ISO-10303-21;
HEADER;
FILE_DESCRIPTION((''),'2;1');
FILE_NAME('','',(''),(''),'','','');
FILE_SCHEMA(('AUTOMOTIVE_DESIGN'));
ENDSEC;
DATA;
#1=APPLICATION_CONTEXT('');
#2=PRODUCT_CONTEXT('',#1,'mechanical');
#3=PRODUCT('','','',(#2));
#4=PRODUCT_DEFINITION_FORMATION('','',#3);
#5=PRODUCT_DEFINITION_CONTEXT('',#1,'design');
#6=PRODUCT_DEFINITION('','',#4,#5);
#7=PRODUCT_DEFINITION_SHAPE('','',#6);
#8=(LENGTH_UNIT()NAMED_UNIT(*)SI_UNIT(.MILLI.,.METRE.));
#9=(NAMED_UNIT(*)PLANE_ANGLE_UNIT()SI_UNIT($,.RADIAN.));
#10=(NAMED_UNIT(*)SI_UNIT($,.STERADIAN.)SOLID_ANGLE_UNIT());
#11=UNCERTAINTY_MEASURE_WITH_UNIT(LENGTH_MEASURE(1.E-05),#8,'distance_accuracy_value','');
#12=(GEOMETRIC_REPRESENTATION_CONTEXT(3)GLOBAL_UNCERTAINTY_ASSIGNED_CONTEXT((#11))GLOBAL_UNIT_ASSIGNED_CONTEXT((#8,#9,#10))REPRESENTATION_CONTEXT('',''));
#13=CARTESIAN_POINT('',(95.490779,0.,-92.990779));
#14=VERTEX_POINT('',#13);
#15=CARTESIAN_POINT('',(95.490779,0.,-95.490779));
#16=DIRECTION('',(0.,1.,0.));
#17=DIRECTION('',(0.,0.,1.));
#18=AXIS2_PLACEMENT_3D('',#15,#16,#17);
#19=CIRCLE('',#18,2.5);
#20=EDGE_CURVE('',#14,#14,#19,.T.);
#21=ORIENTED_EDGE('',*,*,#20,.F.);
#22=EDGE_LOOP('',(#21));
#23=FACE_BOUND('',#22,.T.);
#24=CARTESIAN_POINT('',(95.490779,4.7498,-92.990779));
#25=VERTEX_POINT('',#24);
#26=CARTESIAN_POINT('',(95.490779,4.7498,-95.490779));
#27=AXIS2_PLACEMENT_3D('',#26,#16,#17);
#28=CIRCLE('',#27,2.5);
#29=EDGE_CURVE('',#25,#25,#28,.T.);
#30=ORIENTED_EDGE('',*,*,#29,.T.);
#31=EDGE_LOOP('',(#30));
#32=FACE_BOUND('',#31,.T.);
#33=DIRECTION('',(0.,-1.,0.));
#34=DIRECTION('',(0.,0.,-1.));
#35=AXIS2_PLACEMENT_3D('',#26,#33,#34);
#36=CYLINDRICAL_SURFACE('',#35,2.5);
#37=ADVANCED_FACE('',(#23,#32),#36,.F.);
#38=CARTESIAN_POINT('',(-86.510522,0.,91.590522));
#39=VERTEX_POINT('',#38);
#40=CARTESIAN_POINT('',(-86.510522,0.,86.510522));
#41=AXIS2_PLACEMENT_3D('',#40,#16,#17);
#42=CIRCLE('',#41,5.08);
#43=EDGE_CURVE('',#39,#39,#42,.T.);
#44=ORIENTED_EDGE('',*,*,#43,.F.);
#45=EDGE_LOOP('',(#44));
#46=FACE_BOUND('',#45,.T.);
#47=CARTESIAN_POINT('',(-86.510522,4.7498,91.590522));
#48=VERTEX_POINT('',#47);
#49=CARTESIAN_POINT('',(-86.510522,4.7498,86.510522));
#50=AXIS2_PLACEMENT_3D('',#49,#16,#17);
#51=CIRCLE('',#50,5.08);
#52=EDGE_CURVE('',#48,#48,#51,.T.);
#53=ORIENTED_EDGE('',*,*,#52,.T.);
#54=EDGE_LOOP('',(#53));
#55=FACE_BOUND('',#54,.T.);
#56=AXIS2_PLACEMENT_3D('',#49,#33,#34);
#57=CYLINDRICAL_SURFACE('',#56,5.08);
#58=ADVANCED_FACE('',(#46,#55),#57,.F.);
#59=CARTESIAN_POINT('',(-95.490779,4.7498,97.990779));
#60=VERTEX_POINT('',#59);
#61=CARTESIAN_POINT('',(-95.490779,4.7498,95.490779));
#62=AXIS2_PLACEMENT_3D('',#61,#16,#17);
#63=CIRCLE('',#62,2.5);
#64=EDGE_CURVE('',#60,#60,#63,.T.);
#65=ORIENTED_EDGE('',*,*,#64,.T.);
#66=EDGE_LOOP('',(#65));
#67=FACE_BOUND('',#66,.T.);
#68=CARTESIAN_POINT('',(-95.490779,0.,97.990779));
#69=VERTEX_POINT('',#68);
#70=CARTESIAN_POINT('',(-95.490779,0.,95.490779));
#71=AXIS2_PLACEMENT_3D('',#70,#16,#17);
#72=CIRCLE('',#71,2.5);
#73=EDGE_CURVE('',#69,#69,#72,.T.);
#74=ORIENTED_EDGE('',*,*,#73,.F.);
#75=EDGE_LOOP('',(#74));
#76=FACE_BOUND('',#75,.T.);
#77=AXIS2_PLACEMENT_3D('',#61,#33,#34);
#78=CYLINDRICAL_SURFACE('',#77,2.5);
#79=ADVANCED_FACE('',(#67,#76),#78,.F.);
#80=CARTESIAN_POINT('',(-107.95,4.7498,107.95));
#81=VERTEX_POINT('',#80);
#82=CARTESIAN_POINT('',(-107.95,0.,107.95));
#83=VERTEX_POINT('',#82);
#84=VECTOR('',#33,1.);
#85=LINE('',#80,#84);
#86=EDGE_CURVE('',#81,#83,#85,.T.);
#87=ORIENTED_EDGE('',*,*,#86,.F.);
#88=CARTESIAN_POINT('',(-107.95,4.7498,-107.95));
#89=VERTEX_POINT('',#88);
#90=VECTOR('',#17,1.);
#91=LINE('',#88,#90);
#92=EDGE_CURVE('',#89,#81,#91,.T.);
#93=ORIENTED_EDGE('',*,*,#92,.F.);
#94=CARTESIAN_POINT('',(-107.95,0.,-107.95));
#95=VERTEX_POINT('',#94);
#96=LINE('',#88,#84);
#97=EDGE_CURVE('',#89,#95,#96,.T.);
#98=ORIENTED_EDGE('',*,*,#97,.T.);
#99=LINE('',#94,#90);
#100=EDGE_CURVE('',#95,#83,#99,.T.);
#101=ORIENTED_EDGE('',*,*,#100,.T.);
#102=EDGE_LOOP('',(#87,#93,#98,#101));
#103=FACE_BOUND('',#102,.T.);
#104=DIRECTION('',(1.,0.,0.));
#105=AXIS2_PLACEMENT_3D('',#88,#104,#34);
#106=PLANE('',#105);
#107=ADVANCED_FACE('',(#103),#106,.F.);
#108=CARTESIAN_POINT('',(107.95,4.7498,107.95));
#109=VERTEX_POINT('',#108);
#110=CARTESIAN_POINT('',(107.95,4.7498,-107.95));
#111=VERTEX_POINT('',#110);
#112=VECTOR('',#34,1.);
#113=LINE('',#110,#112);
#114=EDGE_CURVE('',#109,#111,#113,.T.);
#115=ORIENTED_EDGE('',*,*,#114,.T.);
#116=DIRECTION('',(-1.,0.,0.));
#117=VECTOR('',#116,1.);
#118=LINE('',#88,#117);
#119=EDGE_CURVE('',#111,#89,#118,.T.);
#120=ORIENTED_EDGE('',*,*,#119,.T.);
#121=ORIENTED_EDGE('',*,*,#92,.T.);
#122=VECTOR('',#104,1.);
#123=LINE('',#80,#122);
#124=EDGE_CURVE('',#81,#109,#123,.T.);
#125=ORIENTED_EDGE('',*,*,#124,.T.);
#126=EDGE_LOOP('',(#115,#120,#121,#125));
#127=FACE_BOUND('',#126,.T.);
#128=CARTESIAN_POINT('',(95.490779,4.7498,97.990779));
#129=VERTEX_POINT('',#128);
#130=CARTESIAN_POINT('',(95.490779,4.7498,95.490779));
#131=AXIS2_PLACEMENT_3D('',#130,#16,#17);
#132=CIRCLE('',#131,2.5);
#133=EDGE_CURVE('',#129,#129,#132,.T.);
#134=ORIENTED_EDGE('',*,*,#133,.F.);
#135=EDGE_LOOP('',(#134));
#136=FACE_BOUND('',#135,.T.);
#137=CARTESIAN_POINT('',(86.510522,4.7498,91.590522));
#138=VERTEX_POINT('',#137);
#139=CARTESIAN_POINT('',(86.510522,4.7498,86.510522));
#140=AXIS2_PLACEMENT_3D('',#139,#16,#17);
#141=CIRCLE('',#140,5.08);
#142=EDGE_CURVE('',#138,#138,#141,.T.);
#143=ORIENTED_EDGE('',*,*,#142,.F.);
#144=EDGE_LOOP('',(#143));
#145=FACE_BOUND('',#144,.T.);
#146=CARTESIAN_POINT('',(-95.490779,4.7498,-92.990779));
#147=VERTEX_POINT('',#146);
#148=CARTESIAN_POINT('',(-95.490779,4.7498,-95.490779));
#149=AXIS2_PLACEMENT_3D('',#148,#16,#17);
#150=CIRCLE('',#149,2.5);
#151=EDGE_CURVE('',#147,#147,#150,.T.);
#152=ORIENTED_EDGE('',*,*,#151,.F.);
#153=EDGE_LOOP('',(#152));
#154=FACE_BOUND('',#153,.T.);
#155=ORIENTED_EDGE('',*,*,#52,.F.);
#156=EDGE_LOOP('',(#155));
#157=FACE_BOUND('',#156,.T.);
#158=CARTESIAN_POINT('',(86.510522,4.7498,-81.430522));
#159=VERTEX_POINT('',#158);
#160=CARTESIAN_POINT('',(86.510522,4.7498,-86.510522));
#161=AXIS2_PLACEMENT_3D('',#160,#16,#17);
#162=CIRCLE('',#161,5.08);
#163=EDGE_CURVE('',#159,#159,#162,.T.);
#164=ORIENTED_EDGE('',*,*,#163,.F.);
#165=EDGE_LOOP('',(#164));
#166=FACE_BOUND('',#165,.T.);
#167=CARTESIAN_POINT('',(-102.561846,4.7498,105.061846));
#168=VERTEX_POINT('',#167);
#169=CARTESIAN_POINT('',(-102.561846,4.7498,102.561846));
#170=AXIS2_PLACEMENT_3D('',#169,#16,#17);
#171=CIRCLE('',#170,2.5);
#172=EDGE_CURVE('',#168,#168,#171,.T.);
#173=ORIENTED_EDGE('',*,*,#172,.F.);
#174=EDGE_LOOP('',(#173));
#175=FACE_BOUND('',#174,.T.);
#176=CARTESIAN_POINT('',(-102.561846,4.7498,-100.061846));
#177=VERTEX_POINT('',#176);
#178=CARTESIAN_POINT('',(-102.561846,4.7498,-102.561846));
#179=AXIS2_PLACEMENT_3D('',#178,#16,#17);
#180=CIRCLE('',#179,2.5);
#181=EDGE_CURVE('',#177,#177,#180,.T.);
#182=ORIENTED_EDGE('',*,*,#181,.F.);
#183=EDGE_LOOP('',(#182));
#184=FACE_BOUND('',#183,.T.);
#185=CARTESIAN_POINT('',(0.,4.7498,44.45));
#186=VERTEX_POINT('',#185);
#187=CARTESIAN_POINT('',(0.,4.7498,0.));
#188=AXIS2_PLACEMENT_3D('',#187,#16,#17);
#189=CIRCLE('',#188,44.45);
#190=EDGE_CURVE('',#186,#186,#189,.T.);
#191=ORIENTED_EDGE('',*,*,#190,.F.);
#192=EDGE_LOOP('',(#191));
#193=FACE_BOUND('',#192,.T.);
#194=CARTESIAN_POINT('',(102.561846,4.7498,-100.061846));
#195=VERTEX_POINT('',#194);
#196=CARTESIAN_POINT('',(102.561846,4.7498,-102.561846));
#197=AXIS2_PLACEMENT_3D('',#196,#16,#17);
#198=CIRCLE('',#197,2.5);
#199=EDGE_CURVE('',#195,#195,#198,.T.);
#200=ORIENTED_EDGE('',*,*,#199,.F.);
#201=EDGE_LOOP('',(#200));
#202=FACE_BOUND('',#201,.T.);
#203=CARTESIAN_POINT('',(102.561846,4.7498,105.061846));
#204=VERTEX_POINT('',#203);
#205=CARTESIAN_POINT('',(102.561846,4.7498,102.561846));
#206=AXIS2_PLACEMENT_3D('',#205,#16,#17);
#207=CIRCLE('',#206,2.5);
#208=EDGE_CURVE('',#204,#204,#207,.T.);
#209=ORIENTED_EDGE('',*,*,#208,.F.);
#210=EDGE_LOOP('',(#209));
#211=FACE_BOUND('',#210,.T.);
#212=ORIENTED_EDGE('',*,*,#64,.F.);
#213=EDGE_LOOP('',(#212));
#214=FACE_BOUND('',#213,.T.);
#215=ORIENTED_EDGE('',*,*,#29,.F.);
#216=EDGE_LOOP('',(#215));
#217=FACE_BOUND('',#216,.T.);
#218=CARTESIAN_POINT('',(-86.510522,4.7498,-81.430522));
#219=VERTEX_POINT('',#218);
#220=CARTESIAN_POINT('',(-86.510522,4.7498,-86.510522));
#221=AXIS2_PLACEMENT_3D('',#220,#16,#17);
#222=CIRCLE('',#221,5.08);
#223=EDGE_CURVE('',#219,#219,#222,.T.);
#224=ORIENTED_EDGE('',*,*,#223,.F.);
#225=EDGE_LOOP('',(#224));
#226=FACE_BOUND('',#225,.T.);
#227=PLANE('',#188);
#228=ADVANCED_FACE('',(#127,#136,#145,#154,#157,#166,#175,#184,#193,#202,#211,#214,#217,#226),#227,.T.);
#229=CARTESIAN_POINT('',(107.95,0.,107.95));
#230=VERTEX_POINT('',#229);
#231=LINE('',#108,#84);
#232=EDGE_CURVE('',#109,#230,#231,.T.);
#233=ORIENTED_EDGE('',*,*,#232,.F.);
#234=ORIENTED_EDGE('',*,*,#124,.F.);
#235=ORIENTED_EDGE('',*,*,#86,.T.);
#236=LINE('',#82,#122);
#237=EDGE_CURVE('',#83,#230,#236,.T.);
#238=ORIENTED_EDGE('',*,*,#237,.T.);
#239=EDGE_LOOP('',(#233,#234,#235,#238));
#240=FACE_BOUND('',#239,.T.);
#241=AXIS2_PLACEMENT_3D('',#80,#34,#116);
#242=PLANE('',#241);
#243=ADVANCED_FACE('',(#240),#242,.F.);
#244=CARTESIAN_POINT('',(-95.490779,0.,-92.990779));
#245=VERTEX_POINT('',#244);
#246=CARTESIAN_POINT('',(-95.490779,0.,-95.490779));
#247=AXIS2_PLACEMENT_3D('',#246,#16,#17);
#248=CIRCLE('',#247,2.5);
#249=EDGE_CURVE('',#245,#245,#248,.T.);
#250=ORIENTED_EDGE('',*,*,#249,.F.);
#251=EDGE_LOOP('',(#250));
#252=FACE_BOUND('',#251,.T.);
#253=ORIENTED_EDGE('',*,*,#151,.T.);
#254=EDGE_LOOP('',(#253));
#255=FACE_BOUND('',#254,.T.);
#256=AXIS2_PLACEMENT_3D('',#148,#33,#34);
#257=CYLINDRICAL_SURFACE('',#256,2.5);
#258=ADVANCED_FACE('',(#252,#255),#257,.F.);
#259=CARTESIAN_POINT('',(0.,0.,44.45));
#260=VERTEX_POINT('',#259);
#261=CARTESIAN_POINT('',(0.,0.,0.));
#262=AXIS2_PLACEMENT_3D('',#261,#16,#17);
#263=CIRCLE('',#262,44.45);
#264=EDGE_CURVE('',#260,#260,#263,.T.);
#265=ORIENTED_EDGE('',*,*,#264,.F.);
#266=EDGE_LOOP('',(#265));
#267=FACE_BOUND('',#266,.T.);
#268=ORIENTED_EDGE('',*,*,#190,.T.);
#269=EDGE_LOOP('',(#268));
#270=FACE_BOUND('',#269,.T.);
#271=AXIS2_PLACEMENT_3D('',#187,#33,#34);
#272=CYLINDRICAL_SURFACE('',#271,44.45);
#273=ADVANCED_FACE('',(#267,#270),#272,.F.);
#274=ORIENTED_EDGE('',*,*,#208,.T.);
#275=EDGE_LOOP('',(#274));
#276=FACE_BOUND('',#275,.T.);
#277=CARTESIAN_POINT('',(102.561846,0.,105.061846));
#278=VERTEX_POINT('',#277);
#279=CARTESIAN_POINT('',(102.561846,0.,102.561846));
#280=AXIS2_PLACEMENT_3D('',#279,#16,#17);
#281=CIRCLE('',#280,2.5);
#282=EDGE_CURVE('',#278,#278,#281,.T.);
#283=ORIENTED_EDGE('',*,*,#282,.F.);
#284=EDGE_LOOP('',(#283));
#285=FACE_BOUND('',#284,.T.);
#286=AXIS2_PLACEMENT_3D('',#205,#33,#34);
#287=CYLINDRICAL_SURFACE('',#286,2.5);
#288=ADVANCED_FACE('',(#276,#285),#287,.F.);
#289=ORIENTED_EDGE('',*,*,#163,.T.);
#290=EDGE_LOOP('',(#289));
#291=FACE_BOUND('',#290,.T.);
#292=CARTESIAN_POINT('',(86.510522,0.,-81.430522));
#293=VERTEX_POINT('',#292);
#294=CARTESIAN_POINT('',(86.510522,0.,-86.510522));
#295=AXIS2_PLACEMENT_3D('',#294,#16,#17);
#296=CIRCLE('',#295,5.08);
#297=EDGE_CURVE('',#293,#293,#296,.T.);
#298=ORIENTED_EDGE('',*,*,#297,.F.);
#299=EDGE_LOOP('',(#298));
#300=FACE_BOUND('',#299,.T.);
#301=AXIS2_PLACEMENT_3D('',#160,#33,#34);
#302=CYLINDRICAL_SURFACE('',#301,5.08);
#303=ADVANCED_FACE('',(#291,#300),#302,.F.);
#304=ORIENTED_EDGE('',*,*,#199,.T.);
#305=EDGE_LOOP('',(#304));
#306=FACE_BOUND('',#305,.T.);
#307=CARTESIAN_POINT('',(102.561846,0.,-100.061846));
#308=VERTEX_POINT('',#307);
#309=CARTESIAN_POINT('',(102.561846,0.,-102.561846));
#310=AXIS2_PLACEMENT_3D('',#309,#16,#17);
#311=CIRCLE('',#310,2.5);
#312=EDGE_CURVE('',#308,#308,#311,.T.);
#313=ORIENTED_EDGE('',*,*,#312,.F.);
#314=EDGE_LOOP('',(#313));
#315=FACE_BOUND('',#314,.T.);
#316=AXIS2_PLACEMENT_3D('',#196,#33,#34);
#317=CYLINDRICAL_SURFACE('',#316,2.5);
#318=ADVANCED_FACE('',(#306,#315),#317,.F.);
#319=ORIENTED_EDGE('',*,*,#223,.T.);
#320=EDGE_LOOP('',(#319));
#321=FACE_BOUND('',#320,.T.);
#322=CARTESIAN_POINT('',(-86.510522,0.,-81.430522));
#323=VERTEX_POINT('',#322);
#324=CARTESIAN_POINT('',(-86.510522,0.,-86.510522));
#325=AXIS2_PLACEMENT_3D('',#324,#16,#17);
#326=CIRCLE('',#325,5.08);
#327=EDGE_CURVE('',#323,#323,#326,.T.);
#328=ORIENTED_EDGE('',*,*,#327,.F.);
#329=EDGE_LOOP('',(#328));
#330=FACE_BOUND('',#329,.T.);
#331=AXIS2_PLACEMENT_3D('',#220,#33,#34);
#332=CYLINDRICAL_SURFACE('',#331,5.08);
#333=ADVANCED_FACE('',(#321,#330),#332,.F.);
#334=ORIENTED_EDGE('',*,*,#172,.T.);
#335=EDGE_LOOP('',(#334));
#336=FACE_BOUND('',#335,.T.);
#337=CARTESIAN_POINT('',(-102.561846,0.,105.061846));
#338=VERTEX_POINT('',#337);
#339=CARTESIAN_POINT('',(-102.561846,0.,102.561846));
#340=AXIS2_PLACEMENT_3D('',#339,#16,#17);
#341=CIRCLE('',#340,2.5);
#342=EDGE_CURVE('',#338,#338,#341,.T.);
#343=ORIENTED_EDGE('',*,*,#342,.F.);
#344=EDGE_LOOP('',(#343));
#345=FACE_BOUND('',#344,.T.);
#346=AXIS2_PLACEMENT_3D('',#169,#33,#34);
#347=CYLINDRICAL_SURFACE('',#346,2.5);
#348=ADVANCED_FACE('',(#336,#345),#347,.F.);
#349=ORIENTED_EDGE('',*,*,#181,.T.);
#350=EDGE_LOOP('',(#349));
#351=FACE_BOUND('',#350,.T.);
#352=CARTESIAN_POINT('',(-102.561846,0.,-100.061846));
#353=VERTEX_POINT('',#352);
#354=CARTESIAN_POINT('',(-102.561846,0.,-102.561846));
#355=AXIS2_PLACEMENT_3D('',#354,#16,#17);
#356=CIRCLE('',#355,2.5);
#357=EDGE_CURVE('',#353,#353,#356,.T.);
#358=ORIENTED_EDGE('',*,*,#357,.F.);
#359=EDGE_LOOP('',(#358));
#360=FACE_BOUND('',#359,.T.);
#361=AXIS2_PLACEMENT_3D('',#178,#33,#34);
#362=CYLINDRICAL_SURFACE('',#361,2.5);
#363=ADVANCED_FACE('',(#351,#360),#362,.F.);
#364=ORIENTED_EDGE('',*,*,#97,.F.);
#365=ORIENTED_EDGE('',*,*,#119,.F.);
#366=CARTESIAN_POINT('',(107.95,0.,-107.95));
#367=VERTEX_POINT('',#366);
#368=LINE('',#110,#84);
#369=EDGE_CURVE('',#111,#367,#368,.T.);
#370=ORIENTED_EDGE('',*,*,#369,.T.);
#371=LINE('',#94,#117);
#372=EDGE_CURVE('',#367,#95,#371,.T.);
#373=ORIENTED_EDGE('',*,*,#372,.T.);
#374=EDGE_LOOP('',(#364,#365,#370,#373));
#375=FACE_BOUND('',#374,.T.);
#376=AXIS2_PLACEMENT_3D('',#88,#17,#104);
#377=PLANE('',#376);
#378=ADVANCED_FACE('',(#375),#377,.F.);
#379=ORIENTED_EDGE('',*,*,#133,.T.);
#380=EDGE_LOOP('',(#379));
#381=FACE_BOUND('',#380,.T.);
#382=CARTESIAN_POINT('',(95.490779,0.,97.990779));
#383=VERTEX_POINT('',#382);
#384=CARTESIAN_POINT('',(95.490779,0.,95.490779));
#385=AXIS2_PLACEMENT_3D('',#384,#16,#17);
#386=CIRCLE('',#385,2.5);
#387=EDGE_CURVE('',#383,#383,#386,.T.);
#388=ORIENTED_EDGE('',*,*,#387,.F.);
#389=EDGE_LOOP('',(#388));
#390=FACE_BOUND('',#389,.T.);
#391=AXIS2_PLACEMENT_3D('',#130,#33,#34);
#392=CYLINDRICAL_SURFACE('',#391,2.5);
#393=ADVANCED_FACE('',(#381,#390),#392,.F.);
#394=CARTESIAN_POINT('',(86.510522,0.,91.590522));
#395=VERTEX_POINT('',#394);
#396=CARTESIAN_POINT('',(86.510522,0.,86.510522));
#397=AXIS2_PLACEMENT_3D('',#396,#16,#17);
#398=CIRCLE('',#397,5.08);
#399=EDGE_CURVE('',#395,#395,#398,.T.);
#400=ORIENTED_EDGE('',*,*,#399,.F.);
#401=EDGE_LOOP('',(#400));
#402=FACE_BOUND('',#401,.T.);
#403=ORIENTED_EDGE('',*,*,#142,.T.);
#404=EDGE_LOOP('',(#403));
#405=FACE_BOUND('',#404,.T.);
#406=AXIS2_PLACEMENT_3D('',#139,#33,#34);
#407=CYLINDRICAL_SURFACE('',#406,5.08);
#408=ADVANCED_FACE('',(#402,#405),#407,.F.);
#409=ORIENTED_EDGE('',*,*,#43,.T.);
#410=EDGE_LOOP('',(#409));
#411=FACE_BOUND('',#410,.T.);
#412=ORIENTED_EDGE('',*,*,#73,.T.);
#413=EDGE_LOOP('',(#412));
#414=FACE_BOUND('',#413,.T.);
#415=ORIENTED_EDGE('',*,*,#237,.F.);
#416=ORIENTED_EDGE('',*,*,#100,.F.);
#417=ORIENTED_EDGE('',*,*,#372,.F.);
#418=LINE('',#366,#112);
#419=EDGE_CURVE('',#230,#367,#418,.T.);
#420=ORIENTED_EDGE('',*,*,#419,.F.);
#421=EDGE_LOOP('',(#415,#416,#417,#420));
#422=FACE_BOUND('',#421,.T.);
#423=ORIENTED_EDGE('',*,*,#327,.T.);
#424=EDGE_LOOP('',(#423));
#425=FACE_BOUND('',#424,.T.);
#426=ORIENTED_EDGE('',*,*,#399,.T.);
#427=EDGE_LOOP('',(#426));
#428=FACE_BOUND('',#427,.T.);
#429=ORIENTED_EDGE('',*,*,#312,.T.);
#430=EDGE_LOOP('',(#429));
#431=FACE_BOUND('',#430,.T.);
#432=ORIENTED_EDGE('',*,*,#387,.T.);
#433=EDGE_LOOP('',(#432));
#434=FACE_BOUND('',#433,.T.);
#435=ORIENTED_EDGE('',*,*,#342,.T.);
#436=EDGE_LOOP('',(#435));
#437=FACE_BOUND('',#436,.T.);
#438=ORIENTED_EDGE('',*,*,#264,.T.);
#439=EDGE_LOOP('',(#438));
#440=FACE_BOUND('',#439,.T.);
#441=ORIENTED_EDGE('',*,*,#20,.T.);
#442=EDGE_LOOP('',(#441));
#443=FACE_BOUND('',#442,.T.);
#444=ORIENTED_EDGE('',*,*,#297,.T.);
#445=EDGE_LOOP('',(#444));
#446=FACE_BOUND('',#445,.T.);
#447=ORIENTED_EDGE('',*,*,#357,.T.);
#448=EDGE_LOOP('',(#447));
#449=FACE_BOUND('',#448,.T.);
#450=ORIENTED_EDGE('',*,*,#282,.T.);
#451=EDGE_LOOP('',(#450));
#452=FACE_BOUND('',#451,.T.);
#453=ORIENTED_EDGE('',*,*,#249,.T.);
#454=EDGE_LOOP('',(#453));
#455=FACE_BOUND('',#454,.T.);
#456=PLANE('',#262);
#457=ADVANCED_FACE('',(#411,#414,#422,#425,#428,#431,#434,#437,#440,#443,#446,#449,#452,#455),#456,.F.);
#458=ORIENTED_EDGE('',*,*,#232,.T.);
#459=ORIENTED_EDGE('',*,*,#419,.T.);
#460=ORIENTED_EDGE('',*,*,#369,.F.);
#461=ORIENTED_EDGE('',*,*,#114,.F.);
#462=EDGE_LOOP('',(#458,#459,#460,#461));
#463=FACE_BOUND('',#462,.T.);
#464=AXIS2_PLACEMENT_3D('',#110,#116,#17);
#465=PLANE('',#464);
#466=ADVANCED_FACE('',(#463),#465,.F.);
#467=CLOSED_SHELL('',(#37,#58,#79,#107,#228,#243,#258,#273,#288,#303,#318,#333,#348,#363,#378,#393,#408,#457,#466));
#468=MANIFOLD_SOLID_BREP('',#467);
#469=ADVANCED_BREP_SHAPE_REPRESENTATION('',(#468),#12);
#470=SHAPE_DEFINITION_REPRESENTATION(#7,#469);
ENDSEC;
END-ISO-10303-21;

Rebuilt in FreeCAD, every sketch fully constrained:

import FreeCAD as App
import Part
import Sketcher
Q = App.Units.Quantity

doc = App.newDocument("Part")
body = doc.addObject("PartDesign::Body", "Body")

# Sketch on XZ plane
sketch1 = body.newObject("Sketcher::SketchObject", "Sketch")
sketch1.AttachmentSupport = (doc.getObject("XZ_Plane"), [""])
sketch1.MapMode = "FlatFace"
sketch1.addGeometry(Part.LineSegment(App.Vector(-108, -108, 0), App.Vector(-108, 108, 0)), False)
sketch1.addGeometry(Part.LineSegment(App.Vector(-108, 108, 0), App.Vector(108, 108, 0)), False)
sketch1.addGeometry(Part.LineSegment(App.Vector(108, 108, 0), App.Vector(108, -108, 0)), False)
sketch1.addGeometry(Part.LineSegment(App.Vector(108, -108, 0), App.Vector(-108, -108, 0)), False)
sketch1.addGeometry(Part.Circle(App.Vector(-102.6, 102.6, 0), App.Vector(0, 0, 1), 2.5), False)
sketch1.addGeometry(Part.Circle(App.Vector(-95.5, 95.5, 0), App.Vector(0, 0, 1), 2.5), False)
sketch1.addGeometry(Part.Circle(App.Vector(-86.5, 86.5, 0), App.Vector(0, 0, 1), 5.1), False)
sketch1.addGeometry(Part.Circle(App.Vector(102.6, 102.6, 0), App.Vector(0, 0, 1), 2.5), False)
sketch1.addGeometry(Part.Circle(App.Vector(95.5, 95.5, 0), App.Vector(0, 0, 1), 2.5), False)
sketch1.addGeometry(Part.Circle(App.Vector(86.5, 86.5, 0), App.Vector(0, 0, 1), 5.1), False)
sketch1.addGeometry(Part.Circle(App.Vector(-86.5, -86.5, 0), App.Vector(0, 0, 1), 5.1), False)
sketch1.addGeometry(Part.Circle(App.Vector(-95.5, -95.5, 0), App.Vector(0, 0, 1), 2.5), False)
sketch1.addGeometry(Part.Circle(App.Vector(-102.6, -102.6, 0), App.Vector(0, 0, 1), 2.5), False)
sketch1.addGeometry(Part.Circle(App.Vector(0, 0, 0), App.Vector(0, 0, 1), 44.5), False)
sketch1.addGeometry(Part.Circle(App.Vector(86.5, -86.5, 0), App.Vector(0, 0, 1), 5.1), False)
sketch1.addGeometry(Part.Circle(App.Vector(95.5, -95.5, 0), App.Vector(0, 0, 1), 2.5), False)
sketch1.addGeometry(Part.Circle(App.Vector(102.6, -102.6, 0), App.Vector(0, 0, 1), 2.5), False)
sketch1.addConstraint(Sketcher.Constraint("Coincident", 0, 2, 1, 1))
sketch1.addConstraint(Sketcher.Constraint("Coincident", 1, 2, 2, 1))
sketch1.addConstraint(Sketcher.Constraint("Coincident", 2, 2, 3, 1))
sketch1.addConstraint(Sketcher.Constraint("Coincident", 3, 2, 0, 1))
sketch1.addConstraint(Sketcher.Constraint("Vertical", 0))
sketch1.addConstraint(Sketcher.Constraint("Horizontal", 1))
sketch1.addConstraint(Sketcher.Constraint("Vertical", 2))
sketch1.addConstraint(Sketcher.Constraint("Horizontal", 3))
sketch1.addConstraint(Sketcher.Constraint("Coincident", 13, 3, -1, 1))
sketch1.addConstraint(Sketcher.Constraint("Equal", 4, 5))
sketch1.addConstraint(Sketcher.Constraint("Equal", 5, 7))
sketch1.addConstraint(Sketcher.Constraint("Equal", 7, 8))
sketch1.addConstraint(Sketcher.Constraint("Equal", 6, 9))
sketch1.addConstraint(Sketcher.Constraint("Equal", 9, 10))
sketch1.addConstraint(Sketcher.Constraint("Equal", 8, 11))
sketch1.addConstraint(Sketcher.Constraint("Equal", 11, 12))
sketch1.addConstraint(Sketcher.Constraint("Equal", 10, 14))
sketch1.addConstraint(Sketcher.Constraint("Equal", 12, 15))
sketch1.addConstraint(Sketcher.Constraint("Equal", 15, 16))
sketch1.addConstraint(Sketcher.Constraint("Symmetric", 9, 3, 10, 3, -1, 1))
sketch1.addConstraint(Sketcher.Constraint("Symmetric", 8, 3, 11, 3, -1, 1))
sketch1.addConstraint(Sketcher.Constraint("Symmetric", 7, 3, 12, 3, -1, 1))
sketch1.addConstraint(Sketcher.Constraint("Symmetric", 6, 3, 14, 3, -1, 1))
sketch1.addConstraint(Sketcher.Constraint("Symmetric", 5, 3, 15, 3, -1, 1))
sketch1.addConstraint(Sketcher.Constraint("Symmetric", 4, 3, 16, 3, -1, 1))
sketch1.addConstraint(Sketcher.Constraint("Symmetric", 0, 2, 2, 2, -1, 1))
sketch1.addConstraint(Sketcher.Constraint("Symmetric", 4, 3, 7, 3, -2))
sketch1.addConstraint(Sketcher.Constraint("Symmetric", 5, 3, 8, 3, -2))
sketch1.addConstraint(Sketcher.Constraint("Symmetric", 6, 3, 9, 3, -2))
sketch1.addConstraint(Sketcher.Constraint("Equal", 3, 0))
sketch1.addConstraint(Sketcher.Constraint("Diameter", 6, Q("0.4 in")))
sketch1.addConstraint(Sketcher.Constraint("Diameter", 13, Q("3.5 in")))
sketch1.addConstraint(Sketcher.Constraint("DistanceX", 1, 1, 1, 2, Q("8.5 in")))
sketch1.addConstraint(Sketcher.Constraint("Diameter", 4, 5.0))
sketch1.addConstraint(Sketcher.Constraint("DistanceX", 6, 3, 8, 3, 182.001301))
sketch1.addConstraint(Sketcher.Constraint("DistanceY", 10, 3, 5, 3, 182.001301))
sketch1.addConstraint(Sketcher.Constraint("DistanceX", 5, 3, -1, 1, 95.490779))
sketch1.addConstraint(Sketcher.Constraint("DistanceY", -1, 1, 5, 3, 95.490779))
sketch1.addConstraint(Sketcher.Constraint("DistanceX", 6, 3, 7, 3, 189.072369))
sketch1.addConstraint(Sketcher.Constraint("DistanceY", 10, 3, 4, 3, 189.072369))
pad1 = body.newObject("PartDesign::Pad", "Pad")
pad1.Profile = sketch1
pad1.Length = Q("0.187 in")
pad1.Reversed = True

doc.recompute()
